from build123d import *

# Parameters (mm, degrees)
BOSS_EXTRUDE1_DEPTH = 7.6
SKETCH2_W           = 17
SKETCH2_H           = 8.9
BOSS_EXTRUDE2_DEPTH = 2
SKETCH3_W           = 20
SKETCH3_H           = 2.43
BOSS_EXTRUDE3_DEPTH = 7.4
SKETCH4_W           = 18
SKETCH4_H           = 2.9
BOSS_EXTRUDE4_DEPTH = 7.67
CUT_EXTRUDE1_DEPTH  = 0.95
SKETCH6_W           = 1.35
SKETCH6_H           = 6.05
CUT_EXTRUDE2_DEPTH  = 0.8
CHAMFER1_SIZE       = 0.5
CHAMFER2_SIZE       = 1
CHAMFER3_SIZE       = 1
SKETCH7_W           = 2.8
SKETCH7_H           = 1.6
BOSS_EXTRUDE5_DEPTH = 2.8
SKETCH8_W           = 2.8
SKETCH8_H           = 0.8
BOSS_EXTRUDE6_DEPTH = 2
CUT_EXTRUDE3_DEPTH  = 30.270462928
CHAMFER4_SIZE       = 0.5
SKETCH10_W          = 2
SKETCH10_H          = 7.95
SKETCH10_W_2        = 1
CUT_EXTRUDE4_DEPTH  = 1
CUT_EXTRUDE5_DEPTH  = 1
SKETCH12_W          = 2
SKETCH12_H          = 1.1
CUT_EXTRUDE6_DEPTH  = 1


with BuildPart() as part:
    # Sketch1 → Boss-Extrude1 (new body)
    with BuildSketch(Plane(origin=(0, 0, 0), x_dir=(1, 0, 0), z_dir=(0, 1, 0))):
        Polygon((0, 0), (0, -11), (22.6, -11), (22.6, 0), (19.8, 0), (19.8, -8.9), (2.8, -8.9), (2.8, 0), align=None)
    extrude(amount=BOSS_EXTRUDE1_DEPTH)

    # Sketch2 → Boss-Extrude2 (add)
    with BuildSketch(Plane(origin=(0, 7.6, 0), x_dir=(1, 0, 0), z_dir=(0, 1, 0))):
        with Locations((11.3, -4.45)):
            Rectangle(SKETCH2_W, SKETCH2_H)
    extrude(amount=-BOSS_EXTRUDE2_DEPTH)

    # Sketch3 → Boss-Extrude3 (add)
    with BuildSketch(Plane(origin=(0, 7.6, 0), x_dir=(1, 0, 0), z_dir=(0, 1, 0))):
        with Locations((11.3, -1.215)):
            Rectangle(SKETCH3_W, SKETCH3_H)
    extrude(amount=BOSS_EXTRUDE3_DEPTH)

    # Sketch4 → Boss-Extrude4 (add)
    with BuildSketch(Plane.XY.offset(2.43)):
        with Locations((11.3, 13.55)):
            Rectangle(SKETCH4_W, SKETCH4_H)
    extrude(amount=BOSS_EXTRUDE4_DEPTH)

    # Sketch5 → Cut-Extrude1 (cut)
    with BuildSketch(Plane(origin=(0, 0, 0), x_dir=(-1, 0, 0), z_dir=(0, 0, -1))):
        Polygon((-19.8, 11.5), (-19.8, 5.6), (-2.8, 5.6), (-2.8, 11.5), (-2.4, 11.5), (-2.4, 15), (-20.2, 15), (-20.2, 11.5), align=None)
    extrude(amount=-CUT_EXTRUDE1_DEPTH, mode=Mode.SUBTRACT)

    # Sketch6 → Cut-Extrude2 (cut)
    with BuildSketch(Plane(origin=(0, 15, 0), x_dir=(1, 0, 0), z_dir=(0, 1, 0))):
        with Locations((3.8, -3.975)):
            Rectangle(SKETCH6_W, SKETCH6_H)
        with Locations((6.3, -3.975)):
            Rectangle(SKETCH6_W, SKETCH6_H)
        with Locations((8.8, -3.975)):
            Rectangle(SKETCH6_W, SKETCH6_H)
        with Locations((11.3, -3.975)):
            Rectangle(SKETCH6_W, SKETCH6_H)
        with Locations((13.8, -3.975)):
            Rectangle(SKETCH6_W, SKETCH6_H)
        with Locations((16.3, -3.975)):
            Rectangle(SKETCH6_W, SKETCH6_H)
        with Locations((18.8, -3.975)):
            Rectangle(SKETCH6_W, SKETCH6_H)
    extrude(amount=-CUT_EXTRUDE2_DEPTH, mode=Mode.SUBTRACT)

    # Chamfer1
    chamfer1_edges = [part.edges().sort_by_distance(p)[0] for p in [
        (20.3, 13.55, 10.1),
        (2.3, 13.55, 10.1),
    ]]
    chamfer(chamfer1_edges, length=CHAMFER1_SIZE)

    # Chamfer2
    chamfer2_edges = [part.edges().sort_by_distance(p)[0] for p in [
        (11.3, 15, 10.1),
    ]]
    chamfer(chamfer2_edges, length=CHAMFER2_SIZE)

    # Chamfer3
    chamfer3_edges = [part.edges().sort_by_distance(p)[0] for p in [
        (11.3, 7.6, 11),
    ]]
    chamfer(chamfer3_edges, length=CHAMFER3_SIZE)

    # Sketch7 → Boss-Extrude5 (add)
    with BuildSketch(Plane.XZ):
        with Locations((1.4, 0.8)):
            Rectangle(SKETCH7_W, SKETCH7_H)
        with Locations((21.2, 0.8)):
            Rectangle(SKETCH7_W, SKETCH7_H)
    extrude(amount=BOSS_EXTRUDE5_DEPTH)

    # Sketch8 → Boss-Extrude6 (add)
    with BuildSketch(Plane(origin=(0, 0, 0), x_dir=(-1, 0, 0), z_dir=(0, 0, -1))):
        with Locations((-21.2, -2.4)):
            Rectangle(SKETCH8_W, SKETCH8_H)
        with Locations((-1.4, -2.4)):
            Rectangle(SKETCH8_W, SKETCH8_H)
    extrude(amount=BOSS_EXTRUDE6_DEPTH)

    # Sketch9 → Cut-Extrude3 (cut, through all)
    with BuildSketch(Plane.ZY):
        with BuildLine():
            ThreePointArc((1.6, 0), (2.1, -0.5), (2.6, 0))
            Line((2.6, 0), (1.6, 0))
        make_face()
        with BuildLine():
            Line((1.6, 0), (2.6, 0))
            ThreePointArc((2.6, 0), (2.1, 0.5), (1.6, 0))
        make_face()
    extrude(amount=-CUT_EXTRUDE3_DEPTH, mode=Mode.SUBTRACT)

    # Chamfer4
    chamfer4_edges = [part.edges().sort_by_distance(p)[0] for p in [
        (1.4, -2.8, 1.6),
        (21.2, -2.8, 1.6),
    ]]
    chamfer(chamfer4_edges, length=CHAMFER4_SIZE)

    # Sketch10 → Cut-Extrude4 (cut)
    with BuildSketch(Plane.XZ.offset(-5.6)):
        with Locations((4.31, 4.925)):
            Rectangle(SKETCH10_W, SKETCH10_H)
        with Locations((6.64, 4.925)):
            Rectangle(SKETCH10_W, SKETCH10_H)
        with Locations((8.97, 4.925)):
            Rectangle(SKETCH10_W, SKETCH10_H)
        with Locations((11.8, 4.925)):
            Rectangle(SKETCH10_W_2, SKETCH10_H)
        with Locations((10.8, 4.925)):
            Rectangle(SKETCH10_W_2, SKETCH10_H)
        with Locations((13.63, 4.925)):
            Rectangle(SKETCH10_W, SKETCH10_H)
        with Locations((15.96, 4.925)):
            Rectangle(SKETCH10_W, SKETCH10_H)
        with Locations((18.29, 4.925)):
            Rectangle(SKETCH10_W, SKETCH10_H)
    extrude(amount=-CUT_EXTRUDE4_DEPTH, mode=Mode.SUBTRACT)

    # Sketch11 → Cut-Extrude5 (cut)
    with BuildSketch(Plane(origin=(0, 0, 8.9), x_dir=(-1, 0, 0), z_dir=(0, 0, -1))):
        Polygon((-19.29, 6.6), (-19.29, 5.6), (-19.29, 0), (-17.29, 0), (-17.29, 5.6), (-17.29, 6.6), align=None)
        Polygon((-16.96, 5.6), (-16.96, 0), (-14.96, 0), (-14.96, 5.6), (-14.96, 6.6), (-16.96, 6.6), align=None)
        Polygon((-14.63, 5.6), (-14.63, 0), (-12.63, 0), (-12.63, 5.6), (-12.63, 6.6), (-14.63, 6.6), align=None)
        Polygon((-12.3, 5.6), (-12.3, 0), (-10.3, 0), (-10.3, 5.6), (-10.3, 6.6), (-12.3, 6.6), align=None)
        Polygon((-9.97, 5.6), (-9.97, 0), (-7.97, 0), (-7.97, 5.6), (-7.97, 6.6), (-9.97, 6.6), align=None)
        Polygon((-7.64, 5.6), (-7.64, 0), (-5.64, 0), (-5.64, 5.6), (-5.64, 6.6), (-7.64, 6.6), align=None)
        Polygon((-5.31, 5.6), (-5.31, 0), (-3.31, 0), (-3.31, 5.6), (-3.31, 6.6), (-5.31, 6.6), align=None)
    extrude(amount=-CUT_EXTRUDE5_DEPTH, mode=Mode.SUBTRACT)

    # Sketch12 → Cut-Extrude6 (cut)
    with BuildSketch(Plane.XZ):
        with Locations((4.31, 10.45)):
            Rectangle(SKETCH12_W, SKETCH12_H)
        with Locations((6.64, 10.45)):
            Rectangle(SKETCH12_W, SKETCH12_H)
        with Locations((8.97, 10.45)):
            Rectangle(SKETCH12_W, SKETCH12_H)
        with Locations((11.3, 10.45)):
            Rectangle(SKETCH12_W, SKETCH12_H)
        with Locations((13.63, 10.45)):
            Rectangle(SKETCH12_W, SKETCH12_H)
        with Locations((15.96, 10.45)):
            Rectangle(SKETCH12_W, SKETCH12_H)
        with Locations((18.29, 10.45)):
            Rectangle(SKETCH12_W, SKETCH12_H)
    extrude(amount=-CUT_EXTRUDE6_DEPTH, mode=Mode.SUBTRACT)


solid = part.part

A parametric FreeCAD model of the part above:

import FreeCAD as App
import Part
import Sketcher


def edges_at(feature, points):
    """Names of the edges that pass closest to the given points."""
    edges = feature.Shape.Edges
    near = lambda p: min(range(len(edges)), key=lambda i: edges[i].distToShape(Part.Vertex(*p))[0])
    return sorted({f"Edge{near(p) + 1}" for p in points})


def add_polygon(sketch, points):
    """Adds a closed chain of lines whose ends are joined by coincident constraints."""
    first, n = sketch.GeometryCount, len(points)
    for a, b in zip(points, points[1:] + points[:1]):
        sketch.addGeometry(Part.LineSegment(App.Vector(*a, 0), App.Vector(*b, 0)), False)
    for i in range(n):
        sketch.addConstraint(Sketcher.Constraint("Coincident", first + i, 2, first + (i + 1) % n, 1))

doc = App.newDocument("Part")
body = doc.addObject("PartDesign::Body", "Body")

# Sketch on XZ plane
sketch1 = body.newObject("Sketcher::SketchObject", "Sketch")
sketch1.AttachmentSupport = (doc.getObject("XZ_Plane"), [""])
sketch1.MapMode = "FlatFace"
add_polygon(sketch1, [(0, 0), (0, 11), (22.6, 11), (22.6, 0), (19.8, 0), (19.8, 8.9), (2.8, 8.9), (2.8, 0)])  # lines 0-7
sketch1.addConstraint(Sketcher.Constraint("Vertical", 0))
sketch1.addConstraint(Sketcher.Constraint("Horizontal", 1))
sketch1.addConstraint(Sketcher.Constraint("Vertical", 2))
sketch1.addConstraint(Sketcher.Constraint("Horizontal", 3))
sketch1.addConstraint(Sketcher.Constraint("Vertical", 4))
sketch1.addConstraint(Sketcher.Constraint("Horizontal", 5))
sketch1.addConstraint(Sketcher.Constraint("Vertical", 6))
sketch1.addConstraint(Sketcher.Constraint("Horizontal", 7))
sketch1.addConstraint(Sketcher.Constraint("Coincident", 7, 2, -1, 1))
sketch1.addConstraint(Sketcher.Constraint("PointOnObject", 2, 2, -1))
sketch1.addConstraint(Sketcher.Constraint("Equal", 3, 7))
sketch1.addConstraint(Sketcher.Constraint("DistanceX", 5, 2, 5, 1, 17.0))
sketch1.addConstraint(Sketcher.Constraint("DistanceY", 0, 1, 0, 2, 11.0))
sketch1.addConstraint(Sketcher.Constraint("DistanceX", 1, 1, 1, 2, 22.6))
sketch1.addConstraint(Sketcher.Constraint("DistanceY", 4, 1, 4, 2, 8.9))
pad1 = body.newObject("PartDesign::Pad", "Pad")
pad1.Profile = sketch1
pad1.Length = 7.6
pad1.Reversed = True

# Sketch on XZ plane
sketch2 = body.newObject("Sketcher::SketchObject", "Sketch001")
sketch2.AttachmentSupport = (doc.getObject("XZ_Plane"), [""])
sketch2.MapMode = "FlatFace"
sketch2.AttachmentOffset = App.Placement(App.Vector(0, 0, -7.6), App.Rotation())
add_polygon(sketch2, [(3, 0), (3, 9), (20, 9), (20, 0)])  # lines 0-3
sketch2.addConstraint(Sketcher.Constraint("Vertical", 0))
sketch2.addConstraint(Sketcher.Constraint("Horizontal", 1))
sketch2.addConstraint(Sketcher.Constraint("Vertical", 2))
sketch2.addConstraint(Sketcher.Constraint("Horizontal", 3))
sketch2.addConstraint(Sketcher.Constraint("PointOnObject", 2, 2, -1))
sketch2.addConstraint(Sketcher.Constraint("DistanceX", 1, 1, 1, 2, 17.0))
sketch2.addConstraint(Sketcher.Constraint("DistanceY", 0, 1, 0, 2, 8.9))
sketch2.addConstraint(Sketcher.Constraint("DistanceX", -1, 1, 0, 2, 2.8))
pad2 = body.newObject("PartDesign::Pad", "Pad001")
pad2.Profile = sketch2
pad2.Length = 2

# Sketch on XZ plane
sketch3 = body.newObject("Sketcher::SketchObject", "Sketch002")
sketch3.AttachmentSupport = (doc.getObject("XZ_Plane"), [""])
sketch3.MapMode = "FlatFace"
sketch3.AttachmentOffset = App.Placement(App.Vector(0, 0, -7.6), App.Rotation())
add_polygon(sketch3, [(1.3, 0), (1.3, 2.4), (21.3, 2.4), (21.3, 0)])  # lines 0-3
sketch3.addConstraint(Sketcher.Constraint("Vertical", 0))
sketch3.addConstraint(Sketcher.Constraint("Horizontal", 1))
sketch3.addConstraint(Sketcher.Constraint("Vertical", 2))
sketch3.addConstraint(Sketcher.Constraint("Horizontal", 3))
sketch3.addConstraint(Sketcher.Constraint("PointOnObject", 2, 2, -1))
sketch3.addConstraint(Sketcher.Constraint("DistanceX", 1, 1, 1, 2, 20.0))
sketch3.addConstraint(Sketcher.Constraint("DistanceY", 0, 1, 0, 2, 2.43))
sketch3.addConstraint(Sketcher.Constraint("DistanceX", -1, 1, 0, 2, 1.3))
pad3 = body.newObject("PartDesign::Pad", "Pad002")
pad3.Profile = sketch3
pad3.Length = 7.4
pad3.Reversed = True

# Sketch on XY plane
sketch4 = body.newObject("Sketcher::SketchObject", "Sketch003")
sketch4.AttachmentSupport = (doc.getObject("XY_Plane"), [""])
sketch4.MapMode = "FlatFace"
sketch4.AttachmentOffset = App.Placement(App.Vector(0, 0, 2.43), App.Rotation())
add_polygon(sketch4, [(2.3, 15), (2.3, 12.1), (20.3, 12.1), (20.3, 15)])  # lines 0-3
sketch4.addConstraint(Sketcher.Constraint("Vertical", 0))
sketch4.addConstraint(Sketcher.Constraint("Horizontal", 1))
sketch4.addConstraint(Sketcher.Constraint("Vertical", 2))
sketch4.addConstraint(Sketcher.Constraint("Horizontal", 3))
sketch4.addConstraint(Sketcher.Constraint("DistanceX", 1, 1, 1, 2, 18.0))
sketch4.addConstraint(Sketcher.Constraint("DistanceY", 0, 2, 0, 1, 2.9))
sketch4.addConstraint(Sketcher.Constraint("DistanceY", -1, 1, 2, 2, 15.0))
sketch4.addConstraint(Sketcher.Constraint("DistanceX", -1, 1, 0, 2, 2.3))
pad4 = body.newObject("PartDesign::Pad", "Pad003")
pad4.Profile = sketch4
pad4.Length = 7.67

# Sketch on XY plane
sketch5 = body.newObject("Sketcher::SketchObject", "Sketch004")
sketch5.AttachmentSupport = (doc.getObject("XY_Plane"), [""])
sketch5.MapMode = "FlatFace"
add_polygon(sketch5, [(19.8, 11.5), (19.8, 5.6), (2.8, 5.6), (2.8, 11.5), (2.4, 11.5), (2.4, 15), (20.2, 15), (20.2, 11.5)])  # lines 0-7
sketch5.addConstraint(Sketcher.Constraint("Vertical", 0))
sketch5.addConstraint(Sketcher.Constraint("Horizontal", 1))
sketch5.addConstraint(Sketcher.Constraint("Vertical", 2))
sketch5.addConstraint(Sketcher.Constraint("Horizontal", 3))
sketch5.addConstraint(Sketcher.Constraint("Vertical", 4))
sketch5.addConstraint(Sketcher.Constraint("Horizontal", 5))
sketch5.addConstraint(Sketcher.Constraint("Vertical", 6))
sketch5.addConstraint(Sketcher.Constraint("Horizontal", 7))
sketch5.addConstraint(Sketcher.Constraint("Horizontal", 3, 2, 6, 2))
sketch5.addConstraint(Sketcher.Constraint("Equal", 3, 7))
sketch5.addConstraint(Sketcher.Constraint("DistanceX", 1, 2, 1, 1, 17.0))
sketch5.addConstraint(Sketcher.Constraint("DistanceX", 3, 2, 3, 1, 0.4))
sketch5.addConstraint(Sketcher.Constraint("DistanceY", 0, 2, 0, 1, 5.9))
sketch5.addConstraint(Sketcher.Constraint("DistanceY", 4, 1, 4, 2, 3.5))
sketch5.addConstraint(Sketcher.Constraint("DistanceY", -1, 1, 4, 2, 15.0))
sketch5.addConstraint(Sketcher.Constraint("DistanceX", -1, 1, 0, 2, 19.8))
pocket1 = body.newObject("PartDesign::Pocket", "Pocket")
pocket1.Profile = sketch5
pocket1.Length = 0.95
pocket1.Reversed = True

# Sketch on XZ plane
sketch6 = body.newObject("Sketcher::SketchObject", "Sketch005")
sketch6.AttachmentSupport = (doc.getObject("XZ_Plane"), [""])
sketch6.MapMode = "FlatFace"
sketch6.AttachmentOffset = App.Placement(App.Vector(0, 0, -15), App.Rotation())
add_polygon(sketch6, [(3.1, 0.9), (3.1, 7), (4.5, 7), (4.5, 0.9)])  # lines 0-3
add_polygon(sketch6, [(5.6, 0.9), (5.6, 7), (7, 7), (7, 0.9)])  # lines 4-7
add_polygon(sketch6, [(8.1, 0.9), (8.1, 7), (9.5, 7), (9.5, 0.9)])  # lines 8-11
add_polygon(sketch6, [(10.6, 0.9), (10.6, 7), (12, 7), (12, 0.9)])  # lines 12-15
add_polygon(sketch6, [(13.1, 0.9), (13.1, 7), (14.5, 7), (14.5, 0.9)])  # lines 16-19
add_polygon(sketch6, [(15.6, 0.9), (15.6, 7), (17, 7), (17, 0.9)])  # lines 20-23
add_polygon(sketch6, [(18.1, 0.9), (18.1, 7), (19.5, 7), (19.5, 0.9)])  # lines 24-27
sketch6.addConstraint(Sketcher.Constraint("Vertical", 0))
sketch6.addConstraint(Sketcher.Constraint("Horizontal", 1))
sketch6.addConstraint(Sketcher.Constraint("Vertical", 2))
sketch6.addConstraint(Sketcher.Constraint("Horizontal", 3))
sketch6.addConstraint(Sketcher.Constraint("Vertical", 4))
sketch6.addConstraint(Sketcher.Constraint("Horizontal", 5))
sketch6.addConstraint(Sketcher.Constraint("Vertical", 6))
sketch6.addConstraint(Sketcher.Constraint("Horizontal", 7))
sketch6.addConstraint(Sketcher.Constraint("Vertical", 8))
sketch6.addConstraint(Sketcher.Constraint("Horizontal", 9))
sketch6.addConstraint(Sketcher.Constraint("Vertical", 10))
sketch6.addConstraint(Sketcher.Constraint("Horizontal", 11))
sketch6.addConstraint(Sketcher.Constraint("Vertical", 12))
sketch6.addConstraint(Sketcher.Constraint("Horizontal", 13))
sketch6.addConstraint(Sketcher.Constraint("Vertical", 14))
sketch6.addConstraint(Sketcher.Constraint("Horizontal", 15))
sketch6.addConstraint(Sketcher.Constraint("Vertical", 16))
sketch6.addConstraint(Sketcher.Constraint("Horizontal", 17))
sketch6.addConstraint(Sketcher.Constraint("Vertical", 18))
sketch6.addConstraint(Sketcher.Constraint("Horizontal", 19))
sketch6.addConstraint(Sketcher.Constraint("Vertical", 20))
sketch6.addConstraint(Sketcher.Constraint("Horizontal", 21))
sketch6.addConstraint(Sketcher.Constraint("Vertical", 22))
sketch6.addConstraint(Sketcher.Constraint("Horizontal", 23))
sketch6.addConstraint(Sketcher.Constraint("Vertical", 24))
sketch6.addConstraint(Sketcher.Constraint("Horizontal", 25))
sketch6.addConstraint(Sketcher.Constraint("Vertical", 26))
sketch6.addConstraint(Sketcher.Constraint("Horizontal", 27))
sketch6.addConstraint(Sketcher.Constraint("Horizontal", 1, 2, 4, 2))
sketch6.addConstraint(Sketcher.Constraint("Horizontal", 3, 2, 6, 2))
sketch6.addConstraint(Sketcher.Constraint("Horizontal", 5, 2, 8, 2))
sketch6.addConstraint(Sketcher.Constraint("Horizontal", 7, 2, 10, 2))
sketch6.addConstraint(Sketcher.Constraint("Horizontal", 9, 2, 12, 2))
sketch6.addConstraint(Sketcher.Constraint("Horizontal", 11, 2, 14, 2))
sketch6.addConstraint(Sketcher.Constraint("Horizontal", 13, 2, 16, 2))
sketch6.addConstraint(Sketcher.Constraint("Horizontal", 15, 2, 18, 2))
sketch6.addConstraint(Sketcher.Constraint("Horizontal", 17, 2, 20, 2))
sketch6.addConstraint(Sketcher.Constraint("Horizontal", 19, 2, 22, 2))
sketch6.addConstraint(Sketcher.Constraint("Horizontal", 21, 2, 24, 2))
sketch6.addConstraint(Sketcher.Constraint("Horizontal", 23, 2, 26, 2))
sketch6.addConstraint(Sketcher.Constraint("Equal", 3, 5))
sketch6.addConstraint(Sketcher.Constraint("Equal", 7, 9))
sketch6.addConstraint(Sketcher.Constraint("Equal", 11, 13))
sketch6.addConstraint(Sketcher.Constraint("Equal", 15, 17))
sketch6.addConstraint(Sketcher.Constraint("Equal", 19, 21))
sketch6.addConstraint(Sketcher.Constraint("Equal", 23, 25))
sketch6.addConstraint(Sketcher.Constraint("DistanceY", -1, 1, 0, 2, 7.0))
sketch6.addConstraint(Sketcher.Constraint("DistanceX", 0, 2, 8, 2, 5.0))
sketch6.addConstraint(Sketcher.Constraint("DistanceX", 4, 2, 12, 2, 5.0))
sketch6.addConstraint(Sketcher.Constraint("DistanceX", 8, 2, 16, 2, 5.0))
sketch6.addConstraint(Sketcher.Constraint("DistanceX", 12, 2, 20, 2, 5.0))
sketch6.addConstraint(Sketcher.Constraint("DistanceX", 16, 2, 24, 2, 5.0))
sketch6.addConstraint(Sketcher.Constraint("DistanceX", 1, 1, 1, 2, 1.35))
sketch6.addConstraint(Sketcher.Constraint("DistanceY", 0, 1, 0, 2, 6.05))
sketch6.addConstraint(Sketcher.Constraint("DistanceX", 0, 2, 4, 2, 2.5))
sketch6.addConstraint(Sketcher.Constraint("DistanceX", -1, 1, 0, 2, 3.125))
pocket2 = body.newObject("PartDesign::Pocket", "Pocket001")
pocket2.Profile = sketch6
pocket2.Length = 0.8
pocket2.Reversed = True
doc.recompute()

chamfer = body.newObject("PartDesign::Chamfer", "Chamfer")
chamfer.Base = (pocket2, edges_at(pocket2, [(20.3, 13.55, 10.1), (2.3, 13.55, 10.1)]))
chamfer.Size = 0.5
doc.recompute()

chamfer2 = body.newObject("PartDesign::Chamfer", "Chamfer001")
chamfer2.Base = (chamfer, edges_at(chamfer, [(11.3, 15, 10.1)]))
chamfer2.Size = 1
doc.recompute()

chamfer3 = body.newObject("PartDesign::Chamfer", "Chamfer002")
chamfer3.Base = (chamfer2, edges_at(chamfer2, [(11.3, 7.6, 11)]))
chamfer3.Size = 1

# Sketch on XZ plane
sketch7 = body.newObject("Sketcher::SketchObject", "Sketch006")
sketch7.AttachmentSupport = (doc.getObject("XZ_Plane"), [""])
sketch7.MapMode = "FlatFace"
add_polygon(sketch7, [(0, 1.6), (0, 0), (2.8, 0), (2.8, 1.6)])  # lines 0-3
add_polygon(sketch7, [(19.8, 1.6), (19.8, 0), (22.6, 0), (22.6, 1.6)])  # lines 4-7
sketch7.addConstraint(Sketcher.Constraint("Vertical", 0))
sketch7.addConstraint(Sketcher.Constraint("Horizontal", 1))
sketch7.addConstraint(Sketcher.Constraint("Vertical", 2))
sketch7.addConstraint(Sketcher.Constraint("Horizontal", 3))
sketch7.addConstraint(Sketcher.Constraint("Vertical", 4))
sketch7.addConstraint(Sketcher.Constraint("Horizontal", 5))
sketch7.addConstraint(Sketcher.Constraint("Vertical", 6))
sketch7.addConstraint(Sketcher.Constraint("Horizontal", 7))
sketch7.addConstraint(Sketcher.Constraint("Coincident", 0, 2, -1, 1))
sketch7.addConstraint(Sketcher.Constraint("PointOnObject", 4, 2, -1))
sketch7.addConstraint(Sketcher.Constraint("Horizontal", 3, 2, 6, 2))
sketch7.addConstraint(Sketcher.Constraint("Equal", 3, 5))
sketch7.addConstraint(Sketcher.Constraint("DistanceX", 1, 1, 1, 2, 2.8))
sketch7.addConstraint(Sketcher.Constraint("DistanceY", 0, 2, 0, 1, 1.6))
sketch7.addConstraint(Sketcher.Constraint("DistanceX", 1, 2, 4, 2, 17.0))
pad5 = body.newObject("PartDesign::Pad", "Pad004")
pad5.Profile = sketch7
pad5.Length = 2.8

# Sketch on XY plane
sketch8 = body.newObject("Sketcher::SketchObject", "Sketch007")
sketch8.AttachmentSupport = (doc.getObject("XY_Plane"), [""])
sketch8.MapMode = "FlatFace"
add_polygon(sketch8, [(22.6, -2), (22.6, -2.8), (19.8, -2.8), (19.8, -2)])  # lines 0-3
add_polygon(sketch8, [(2.8, -2), (2.8, -2.8), (0, -2.8), (0, -2)])  # lines 4-7
sketch8.addConstraint(Sketcher.Constraint("Vertical", 0))
sketch8.addConstraint(Sketcher.Constraint("Horizontal", 1))
sketch8.addConstraint(Sketcher.Constraint("Vertical", 2))
sketch8.addConstraint(Sketcher.Constraint("Horizontal", 3))
sketch8.addConstraint(Sketcher.Constraint("Vertical", 4))
sketch8.addConstraint(Sketcher.Constraint("Horizontal", 5))
sketch8.addConstraint(Sketcher.Constraint("Vertical", 6))
sketch8.addConstraint(Sketcher.Constraint("Horizontal", 7))
sketch8.addConstraint(Sketcher.Constraint("PointOnObject", 5, 2, -2))
sketch8.addConstraint(Sketcher.Constraint("Horizontal", 1, 2, 4, 2))
sketch8.addConstraint(Sketcher.Constraint("Horizontal", 3, 2, 6, 2))
sketch8.addConstraint(Sketcher.Constraint("Equal", 3, 5))
sketch8.addConstraint(Sketcher.Constraint("DistanceX", 1, 2, 1, 1, 2.8))
sketch8.addConstraint(Sketcher.Constraint("DistanceY", 0, 2, 0, 1, 0.8))
sketch8.addConstraint(Sketcher.Constraint("DistanceY", 2, 2, -1, 1, 2.0))
sketch8.addConstraint(Sketcher.Constraint("DistanceX", 4, 2, 1, 2, 17.0))
pad6 = body.newObject("PartDesign::Pad", "Pad005")
pad6.Profile = sketch8
pad6.Length = 2
pad6.Reversed = True

# Sketch on YZ plane
sketch9 = body.newObject("Sketcher::SketchObject", "Sketch008")
sketch9.AttachmentSupport = (doc.getObject("YZ_Plane"), [""])
sketch9.MapMode = "FlatFace"
sketch9.addGeometry(Part.Circle(App.Vector(0, 2.1, 0), App.Vector(0, 0, 1), 0.5), False)
sketch9.addConstraint(Sketcher.Constraint("PointOnObject", 0, 3, -2))
sketch9.addConstraint(Sketcher.Constraint("Diameter", 0, 1.0))
sketch9.addConstraint(Sketcher.Constraint("DistanceY", -1, 1, 0, 3, 2.1))
pocket3 = body.newObject("PartDesign::Pocket", "Pocket002")
pocket3.Profile = sketch9
pocket3.Type = "ThroughAll"
pocket3.Reversed = True
doc.recompute()

chamfer4 = body.newObject("PartDesign::Chamfer", "Chamfer003")
chamfer4.Base = (pocket3, edges_at(pocket3, [(1.4, -2.8, 1.6), (21.2, -2.8, 1.6)]))
chamfer4.Size = 0.5

# Sketch on XZ plane
sketch10 = body.newObject("Sketcher::SketchObject", "Sketch009")
sketch10.AttachmentSupport = (doc.getObject("XZ_Plane"), [""])
sketch10.MapMode = "FlatFace"
sketch10.AttachmentOffset = App.Placement(App.Vector(0, 0, -5.6), App.Rotation())
add_polygon(sketch10, [(3.3, 8.9), (3.3, 0.9), (5.3, 0.9), (5.3, 8.9)])  # lines 0-3
add_polygon(sketch10, [(5.6, 8.9), (5.6, 0.9), (7.6, 0.9), (7.6, 8.9)])  # lines 4-7
add_polygon(sketch10, [(8, 8.9), (8, 0.9), (10, 0.9), (10, 8.9)])  # lines 8-11
add_polygon(sketch10, [(12.3, 0.9), (12.3, 8.9), (10.3, 8.9), (10.3, 0.9)])  # lines 12-15
add_polygon(sketch10, [(12.6, 8.9), (12.6, 0.9), (14.6, 0.9), (14.6, 8.9)])  # lines 16-19
add_polygon(sketch10, [(15, 8.9), (15, 0.9), (17, 0.9), (17, 8.9)])  # lines 20-23
add_polygon(sketch10, [(17.3, 8.9), (17.3, 0.9), (19.3, 0.9), (19.3, 8.9)])  # lines 24-27
sketch10.addConstraint(Sketcher.Constraint("Vertical", 0))
sketch10.addConstraint(Sketcher.Constraint("Horizontal", 1))
sketch10.addConstraint(Sketcher.Constraint("Vertical", 2))
sketch10.addConstraint(Sketcher.Constraint("Horizontal", 3))
sketch10.addConstraint(Sketcher.Constraint("Vertical", 4))
sketch10.addConstraint(Sketcher.Constraint("Horizontal", 5))
sketch10.addConstraint(Sketcher.Constraint("Vertical", 6))
sketch10.addConstraint(Sketcher.Constraint("Horizontal", 7))
sketch10.addConstraint(Sketcher.Constraint("Vertical", 8))
sketch10.addConstraint(Sketcher.Constraint("Horizontal", 9))
sketch10.addConstraint(Sketcher.Constraint("Vertical", 10))
sketch10.addConstraint(Sketcher.Constraint("Horizontal", 11))
sketch10.addConstraint(Sketcher.Constraint("Vertical", 12))
sketch10.addConstraint(Sketcher.Constraint("Horizontal", 13))
sketch10.addConstraint(Sketcher.Constraint("Vertical", 14))
sketch10.addConstraint(Sketcher.Constraint("Horizontal", 15))
sketch10.addConstraint(Sketcher.Constraint("Vertical", 16))
sketch10.addConstraint(Sketcher.Constraint("Horizontal", 17))
sketch10.addConstraint(Sketcher.Constraint("Vertical", 18))
sketch10.addConstraint(Sketcher.Constraint("Horizontal", 19))
sketch10.addConstraint(Sketcher.Constraint("Vertical", 20))
sketch10.addConstraint(Sketcher.Constraint("Horizontal", 21))
sketch10.addConstraint(Sketcher.Constraint("Vertical", 22))
sketch10.addConstraint(Sketcher.Constraint("Horizontal", 23))
sketch10.addConstraint(Sketcher.Constraint("Vertical", 24))
sketch10.addConstraint(Sketcher.Constraint("Horizontal", 25))
sketch10.addConstraint(Sketcher.Constraint("Vertical", 26))
sketch10.addConstraint(Sketcher.Constraint("Horizontal", 27))
sketch10.addConstraint(Sketcher.Constraint("Horizontal", 1, 2, 4, 2))
sketch10.addConstraint(Sketcher.Constraint("Horizontal", 3, 2, 6, 2))
sketch10.addConstraint(Sketcher.Constraint("Horizontal", 5, 2, 8, 2))
sketch10.addConstraint(Sketcher.Constraint("Horizontal", 7, 2, 10, 2))
sketch10.addConstraint(Sketcher.Constraint("Horizontal", 11, 2, 12, 2))
sketch10.addConstraint(Sketcher.Constraint("Horizontal", 9, 2, 14, 2))
sketch10.addConstraint(Sketcher.Constraint("Horizontal", 15, 2, 16, 2))
sketch10.addConstraint(Sketcher.Constraint("Horizontal", 13, 2, 18, 2))
sketch10.addConstraint(Sketcher.Constraint("Horizontal", 17, 2, 20, 2))
sketch10.addConstraint(Sketcher.Constraint("Horizontal", 19, 2, 22, 2))
sketch10.addConstraint(Sketcher.Constraint("Horizontal", 21, 2, 24, 2))
sketch10.addConstraint(Sketcher.Constraint("Horizontal", 23, 2, 26, 2))
sketch10.addConstraint(Sketcher.Constraint("Equal", 3, 5))
sketch10.addConstraint(Sketcher.Constraint("Equal", 7, 9))
sketch10.addConstraint(Sketcher.Constraint("Equal", 11, 13))
sketch10.addConstraint(Sketcher.Constraint("Equal", 15, 17))
sketch10.addConstraint(Sketcher.Constraint("Equal", 19, 21))
sketch10.addConstraint(Sketcher.Constraint("Equal", 23, 25))
sketch10.addConstraint(Sketcher.Constraint("DistanceX", 1, 1, 1, 2, 2.0))
sketch10.addConstraint(Sketcher.Constraint("DistanceY", 0, 2, 0, 1, 7.95))
sketch10.addConstraint(Sketcher.Constraint("DistanceY", -1, 1, 2, 2, 8.9))
sketch10.addConstraint(Sketcher.Constraint("DistanceX", -1, 1, 12, 2, 12.3))
sketch10.addConstraint(Sketcher.Constraint("DistanceX", -1, 1, 0, 2, 3.31))
sketch10.addConstraint(Sketcher.Constraint("DistanceX", -1, 1, 4, 2, 5.64))
sketch10.addConstraint(Sketcher.Constraint("DistanceX", -1, 1, 8, 2, 7.97))
sketch10.addConstraint(Sketcher.Constraint("DistanceX", -1, 1, 16, 2, 12.63))
sketch10.addConstraint(Sketcher.Constraint("DistanceX", -1, 1, 20, 2, 14.96))
sketch10.addConstraint(Sketcher.Constraint("DistanceX", -1, 1, 24, 2, 17.29))
pocket4 = body.newObject("PartDesign::Pocket", "Pocket003")
pocket4.Profile = sketch10
pocket4.Length = 1

# Sketch on XY plane
sketch11 = body.newObject("Sketcher::SketchObject", "Sketch010")
sketch11.AttachmentSupport = (doc.getObject("XY_Plane"), [""])
sketch11.MapMode = "FlatFace"
sketch11.AttachmentOffset = App.Placement(App.Vector(0, 0, 8.9), App.Rotation())
add_polygon(sketch11, [(19.3, 6.6), (19.3, 0), (17.3, 0), (17.3, 6.6)])  # lines 0-3
add_polygon(sketch11, [(17, 0), (15, 0), (15, 6.6), (17, 6.6)])  # lines 4-7
add_polygon(sketch11, [(14.6, 0), (12.6, 0), (12.6, 6.6), (14.6, 6.6)])  # lines 8-11
add_polygon(sketch11, [(12.3, 0), (10.3, 0), (10.3, 6.6), (12.3, 6.6)])  # lines 12-15
add_polygon(sketch11, [(10, 0), (8, 0), (8, 6.6), (10, 6.6)])  # lines 16-19
add_polygon(sketch11, [(7.6, 0), (5.6, 0), (5.6, 6.6), (7.6, 6.6)])  # lines 20-23
add_polygon(sketch11, [(5.3, 0), (3.3, 0), (3.3, 6.6), (5.3, 6.6)])  # lines 24-27
sketch11.addConstraint(Sketcher.Constraint("Vertical", 0))
sketch11.addConstraint(Sketcher.Constraint("Horizontal", 1))
sketch11.addConstraint(Sketcher.Constraint("Vertical", 2))
sketch11.addConstraint(Sketcher.Constraint("Horizontal", 3))
sketch11.addConstraint(Sketcher.Constraint("Horizontal", 4))
sketch11.addConstraint(Sketcher.Constraint("Vertical", 5))
sketch11.addConstraint(Sketcher.Constraint("Horizontal", 6))
sketch11.addConstraint(Sketcher.Constraint("Vertical", 7))
sketch11.addConstraint(Sketcher.Constraint("Horizontal", 8))
sketch11.addConstraint(Sketcher.Constraint("Vertical", 9))
sketch11.addConstraint(Sketcher.Constraint("Horizontal", 10))
sketch11.addConstraint(Sketcher.Constraint("Vertical", 11))
sketch11.addConstraint(Sketcher.Constraint("Horizontal", 12))
sketch11.addConstraint(Sketcher.Constraint("Vertical", 13))
sketch11.addConstraint(Sketcher.Constraint("Horizontal", 14))
sketch11.addConstraint(Sketcher.Constraint("Vertical", 15))
sketch11.addConstraint(Sketcher.Constraint("Horizontal", 16))
sketch11.addConstraint(Sketcher.Constraint("Vertical", 17))
sketch11.addConstraint(Sketcher.Constraint("Horizontal", 18))
sketch11.addConstraint(Sketcher.Constraint("Vertical", 19))
sketch11.addConstraint(Sketcher.Constraint("Horizontal", 20))
sketch11.addConstraint(Sketcher.Constraint("Vertical", 21))
sketch11.addConstraint(Sketcher.Constraint("Horizontal", 22))
sketch11.addConstraint(Sketcher.Constraint("Vertical", 23))
sketch11.addConstraint(Sketcher.Constraint("Horizontal", 24))
sketch11.addConstraint(Sketcher.Constraint("Vertical", 25))
sketch11.addConstraint(Sketcher.Constraint("Horizontal", 26))
sketch11.addConstraint(Sketcher.Constraint("Vertical", 27))
sketch11.addConstraint(Sketcher.Constraint("PointOnObject", 0, 2, -1))
sketch11.addConstraint(Sketcher.Constraint("PointOnObject", 4, 2, -1))
sketch11.addConstraint(Sketcher.Constraint("PointOnObject", 8, 2, -1))
sketch11.addConstraint(Sketcher.Constraint("PointOnObject", 12, 2, -1))
sketch11.addConstraint(Sketcher.Constraint("PointOnObject", 16, 2, -1))
sketch11.addConstraint(Sketcher.Constraint("PointOnObject", 20, 2, -1))
sketch11.addConstraint(Sketcher.Constraint("PointOnObject", 24, 2, -1))
sketch11.addConstraint(Sketcher.Constraint("Horizontal", 3, 2, 5, 2))
sketch11.addConstraint(Sketcher.Constraint("Horizontal", 6, 2, 9, 2))
sketch11.addConstraint(Sketcher.Constraint("Horizontal", 10, 2, 13, 2))
sketch11.addConstraint(Sketcher.Constraint("Horizontal", 14, 2, 17, 2))
sketch11.addConstraint(Sketcher.Constraint("Horizontal", 18, 2, 21, 2))
sketch11.addConstraint(Sketcher.Constraint("Horizontal", 22, 2, 25, 2))
sketch11.addConstraint(Sketcher.Constraint("Equal", 3, 4))
sketch11.addConstraint(Sketcher.Constraint("Equal", 6, 8))
sketch11.addConstraint(Sketcher.Constraint("Equal", 10, 12))
sketch11.addConstraint(Sketcher.Constraint("Equal", 14, 16))
sketch11.addConstraint(Sketcher.Constraint("Equal", 18, 20))
sketch11.addConstraint(Sketcher.Constraint("Equal", 22, 24))
sketch11.addConstraint(Sketcher.Constraint("DistanceX", 1, 2, 1, 1, 2.0))
sketch11.addConstraint(Sketcher.Constraint("DistanceY", 0, 2, 0, 1, 6.6))
sketch11.addConstraint(Sketcher.Constraint("DistanceX", -1, 1, 12, 2, 10.3))
sketch11.addConstraint(Sketcher.Constraint("DistanceX", -1, 1, 0, 2, 19.29))
sketch11.addConstraint(Sketcher.Constraint("DistanceX", -1, 1, 4, 2, 14.96))
sketch11.addConstraint(Sketcher.Constraint("DistanceX", -1, 1, 8, 2, 12.63))
sketch11.addConstraint(Sketcher.Constraint("DistanceX", -1, 1, 16, 2, 7.97))
sketch11.addConstraint(Sketcher.Constraint("DistanceX", -1, 1, 20, 2, 5.64))
sketch11.addConstraint(Sketcher.Constraint("DistanceX", -1, 1, 24, 2, 3.31))
pocket5 = body.newObject("PartDesign::Pocket", "Pocket004")
pocket5.Profile = sketch11
pocket5.Length = 1
pocket5.Reversed = True

# Sketch on XZ plane
sketch12 = body.newObject("Sketcher::SketchObject", "Sketch011")
sketch12.AttachmentSupport = (doc.getObject("XZ_Plane"), [""])
sketch12.MapMode = "FlatFace"
add_polygon(sketch12, [(3.3, 11), (3.3, 9.9), (5.3, 9.9), (5.3, 11)])  # lines 0-3
add_polygon(sketch12, [(5.6, 11), (5.6, 9.9), (7.6, 9.9), (7.6, 11)])  # lines 4-7
add_polygon(sketch12, [(8, 11), (8, 9.9), (10, 9.9), (10, 11)])  # lines 8-11
add_polygon(sketch12, [(10.3, 11), (10.3, 9.9), (12.3, 9.9), (12.3, 11)])  # lines 12-15
add_polygon(sketch12, [(12.6, 11), (12.6, 9.9), (14.6, 9.9), (14.6, 11)])  # lines 16-19
add_polygon(sketch12, [(15, 11), (15, 9.9), (17, 9.9), (17, 11)])  # lines 20-23
add_polygon(sketch12, [(17.3, 11), (17.3, 9.9), (19.3, 9.9), (19.3, 11)])  # lines 24-27
sketch12.addConstraint(Sketcher.Constraint("Vertical", 0))
sketch12.addConstraint(Sketcher.Constraint("Horizontal", 1))
sketch12.addConstraint(Sketcher.Constraint("Vertical", 2))
sketch12.addConstraint(Sketcher.Constraint("Horizontal", 3))
sketch12.addConstraint(Sketcher.Constraint("Vertical", 4))
sketch12.addConstraint(Sketcher.Constraint("Horizontal", 5))
sketch12.addConstraint(Sketcher.Constraint("Vertical", 6))
sketch12.addConstraint(Sketcher.Constraint("Horizontal", 7))
sketch12.addConstraint(Sketcher.Constraint("Vertical", 8))
sketch12.addConstraint(Sketcher.Constraint("Horizontal", 9))
sketch12.addConstraint(Sketcher.Constraint("Vertical", 10))
sketch12.addConstraint(Sketcher.Constraint("Horizontal", 11))
sketch12.addConstraint(Sketcher.Constraint("Vertical", 12))
sketch12.addConstraint(Sketcher.Constraint("Horizontal", 13))
sketch12.addConstraint(Sketcher.Constraint("Vertical", 14))
sketch12.addConstraint(Sketcher.Constraint("Horizontal", 15))
sketch12.addConstraint(Sketcher.Constraint("Vertical", 16))
sketch12.addConstraint(Sketcher.Constraint("Horizontal", 17))
sketch12.addConstraint(Sketcher.Constraint("Vertical", 18))
sketch12.addConstraint(Sketcher.Constraint("Horizontal", 19))
sketch12.addConstraint(Sketcher.Constraint("Vertical", 20))
sketch12.addConstraint(Sketcher.Constraint("Horizontal", 21))
sketch12.addConstraint(Sketcher.Constraint("Vertical", 22))
sketch12.addConstraint(Sketcher.Constraint("Horizontal", 23))
sketch12.addConstraint(Sketcher.Constraint("Vertical", 24))
sketch12.addConstraint(Sketcher.Constraint("Horizontal", 25))
sketch12.addConstraint(Sketcher.Constraint("Vertical", 26))
sketch12.addConstraint(Sketcher.Constraint("Horizontal", 27))
sketch12.addConstraint(Sketcher.Constraint("Horizontal", 1, 2, 4, 2))
sketch12.addConstraint(Sketcher.Constraint("Horizontal", 3, 2, 6, 2))
sketch12.addConstraint(Sketcher.Constraint("Horizontal", 5, 2, 8, 2))
sketch12.addConstraint(Sketcher.Constraint("Horizontal", 7, 2, 10, 2))
sketch12.addConstraint(Sketcher.Constraint("Horizontal", 9, 2, 12, 2))
sketch12.addConstraint(Sketcher.Constraint("Horizontal", 11, 2, 14, 2))
sketch12.addConstraint(Sketcher.Constraint("Horizontal", 13, 2, 16, 2))
sketch12.addConstraint(Sketcher.Constraint("Horizontal", 15, 2, 18, 2))
sketch12.addConstraint(Sketcher.Constraint("Horizontal", 17, 2, 20, 2))
sketch12.addConstraint(Sketcher.Constraint("Horizontal", 19, 2, 22, 2))
sketch12.addConstraint(Sketcher.Constraint("Horizontal", 21, 2, 24, 2))
sketch12.addConstraint(Sketcher.Constraint("Horizontal", 23, 2, 26, 2))
sketch12.addConstraint(Sketcher.Constraint("Equal", 3, 5))
sketch12.addConstraint(Sketcher.Constraint("Equal", 7, 9))
sketch12.addConstraint(Sketcher.Constraint("Equal", 11, 13))
sketch12.addConstraint(Sketcher.Constraint("Equal", 15, 17))
sketch12.addConstraint(Sketcher.Constraint("Equal", 19, 21))
sketch12.addConstraint(Sketcher.Constraint("Equal", 23, 25))
sketch12.addConstraint(Sketcher.Constraint("DistanceX", 1, 1, 1, 2, 2.0))
sketch12.addConstraint(Sketcher.Constraint("DistanceY", 0, 2, 0, 1, 1.1))
sketch12.addConstraint(Sketcher.Constraint("DistanceY", -1, 1, 2, 2, 11.0))
sketch12.addConstraint(Sketcher.Constraint("DistanceX", -1, 1, 12, 2, 10.3))
sketch12.addConstraint(Sketcher.Constraint("DistanceX", -1, 1, 0, 2, 3.31))
sketch12.addConstraint(Sketcher.Constraint("DistanceX", -1, 1, 4, 2, 5.64))
sketch12.addConstraint(Sketcher.Constraint("DistanceX", -1, 1, 8, 2, 7.97))
sketch12.addConstraint(Sketcher.Constraint("DistanceX", -1, 1, 16, 2, 12.63))
sketch12.addConstraint(Sketcher.Constraint("DistanceX", -1, 1, 20, 2, 14.96))
sketch12.addConstraint(Sketcher.Constraint("DistanceX", -1, 1, 24, 2, 17.29))
pocket6 = body.newObject("PartDesign::Pocket", "Pocket005")
pocket6.Profile = sketch12
pocket6.Length = 1

doc.recompute()
